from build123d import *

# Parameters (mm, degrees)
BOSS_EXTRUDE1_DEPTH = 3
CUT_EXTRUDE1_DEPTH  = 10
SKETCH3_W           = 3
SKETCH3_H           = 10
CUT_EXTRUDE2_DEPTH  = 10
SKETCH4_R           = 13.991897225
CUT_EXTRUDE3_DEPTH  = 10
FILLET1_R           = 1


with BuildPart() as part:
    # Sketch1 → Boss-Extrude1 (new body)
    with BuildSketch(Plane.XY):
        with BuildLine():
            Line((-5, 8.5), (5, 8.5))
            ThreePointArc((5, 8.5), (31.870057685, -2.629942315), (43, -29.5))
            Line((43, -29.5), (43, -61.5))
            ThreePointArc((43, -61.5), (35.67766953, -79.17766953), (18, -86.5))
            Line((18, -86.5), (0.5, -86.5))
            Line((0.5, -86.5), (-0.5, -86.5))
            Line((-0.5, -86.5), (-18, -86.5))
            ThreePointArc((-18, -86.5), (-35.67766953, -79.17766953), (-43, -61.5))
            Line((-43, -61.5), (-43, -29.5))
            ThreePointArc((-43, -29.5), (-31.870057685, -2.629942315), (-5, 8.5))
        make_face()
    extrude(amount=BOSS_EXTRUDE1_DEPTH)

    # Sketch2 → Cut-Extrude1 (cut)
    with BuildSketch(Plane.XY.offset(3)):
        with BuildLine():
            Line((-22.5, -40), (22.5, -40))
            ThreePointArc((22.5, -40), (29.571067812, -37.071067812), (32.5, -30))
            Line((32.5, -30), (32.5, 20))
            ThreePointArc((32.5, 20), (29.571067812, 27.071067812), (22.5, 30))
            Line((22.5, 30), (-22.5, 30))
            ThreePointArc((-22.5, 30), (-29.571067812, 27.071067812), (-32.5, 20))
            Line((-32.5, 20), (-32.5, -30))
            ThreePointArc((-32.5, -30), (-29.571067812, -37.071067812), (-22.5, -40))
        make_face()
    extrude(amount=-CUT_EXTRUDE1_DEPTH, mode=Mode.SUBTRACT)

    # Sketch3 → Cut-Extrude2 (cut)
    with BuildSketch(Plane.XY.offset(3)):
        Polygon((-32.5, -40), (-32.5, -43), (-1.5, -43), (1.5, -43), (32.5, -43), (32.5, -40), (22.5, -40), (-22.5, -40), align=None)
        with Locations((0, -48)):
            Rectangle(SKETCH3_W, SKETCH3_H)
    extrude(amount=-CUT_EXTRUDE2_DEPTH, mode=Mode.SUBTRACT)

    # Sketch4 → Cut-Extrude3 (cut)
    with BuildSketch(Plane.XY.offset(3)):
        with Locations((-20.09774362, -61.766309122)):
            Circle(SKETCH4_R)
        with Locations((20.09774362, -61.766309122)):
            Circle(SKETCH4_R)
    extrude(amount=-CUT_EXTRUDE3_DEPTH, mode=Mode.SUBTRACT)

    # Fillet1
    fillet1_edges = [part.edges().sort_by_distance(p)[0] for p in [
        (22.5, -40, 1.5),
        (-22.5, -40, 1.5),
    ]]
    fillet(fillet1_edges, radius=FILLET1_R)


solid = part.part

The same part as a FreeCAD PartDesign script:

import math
import FreeCAD as App
import Part
import Sketcher

V = App.Vector
Q = App.Units.Quantity


def edges_at(feature, points):
    """Names of the edges that pass closest to the given points."""
    edges = feature.Shape.Edges
    near = lambda p: min(range(len(edges)), key=lambda i: edges[i].distToShape(Part.Vertex(*p))[0])
    return sorted({f"Edge{near(p) + 1}" for p in points})


def add_polygon(sketch, points):
    """Adds a closed chain of lines whose ends are joined by coincident constraints."""
    first, n = sketch.GeometryCount, len(points)
    for a, b in zip(points, points[1:] + points[:1]):
        sketch.addGeometry(Part.LineSegment(App.Vector(*a, 0), App.Vector(*b, 0)), False)
    for i in range(n):
        sketch.addConstraint(Sketcher.Constraint("Coincident", first + i, 2, first + (i + 1) % n, 1))

doc = App.newDocument("Part")
body = doc.addObject("PartDesign::Body", "Body")

sketch1 = doc.addObject("Sketcher::SketchObject", "Sketch")
body.addObject(sketch1)
sketch1.AttachmentSupport = (doc.XY_Plane, [""])
sketch1.MapMode = "FlatFace"
sketch1.addGeometry([
    Part.LineSegment(V(5, 8.5, 0), V(-5, 8.5, 0)),
    Part.ArcOfCircle(Part.Circle(V(-5, -29.5, 0), V(0, 0, 1), 38), math.radians(90), math.radians(180)),
    Part.LineSegment(V(-43, -29.5, 0), V(-43, -61.5, 0)),
    Part.ArcOfCircle(Part.Circle(V(-18, -61.5, 0), V(0, 0, 1), 25), math.radians(180), math.radians(270)),
    Part.LineSegment(V(-18, -86.5, 0), V(18, -86.5, 0)),
    Part.ArcOfCircle(Part.Circle(V(18, -61.5, 0), V(0, 0, 1), 25), math.radians(-90), math.radians(0)),
    Part.LineSegment(V(43, -61.5, 0), V(43, -29.5, 0)),
    Part.ArcOfCircle(Part.Circle(V(5, -29.5, 0), V(0, 0, 1), 38), math.radians(0), math.radians(90)),
], False)
sketch1.addConstraint([
    Sketcher.Constraint("Tangent", 0, 2, 1, 1),
    Sketcher.Constraint("Tangent", 1, 2, 2, 1),
    Sketcher.Constraint("Tangent", 2, 2, 3, 1),
    Sketcher.Constraint("Tangent", 3, 2, 4, 1),
    Sketcher.Constraint("Tangent", 4, 2, 5, 1),
    Sketcher.Constraint("Tangent", 5, 2, 6, 1),
    Sketcher.Constraint("Tangent", 6, 2, 7, 1),
    Sketcher.Constraint("Tangent", 7, 2, 0, 1),
    Sketcher.Constraint("Horizontal", 0),
    Sketcher.Constraint("Vertical", 2),
    Sketcher.Constraint("Horizontal", 4),
    Sketcher.Constraint("Vertical", 6),
    Sketcher.Constraint("Equal", 3, 5),
    Sketcher.Constraint("Equal", 1, 7),
    Sketcher.Constraint("Radius", 1, Q("38 mm")),
    Sketcher.Constraint("Radius", 3, Q("25 mm")),
    Sketcher.Constraint("DistanceX", 0, 2, 0, 1, Q("10 mm")),
    Sketcher.Constraint("DistanceY", 2, 2, 2, 1, Q("32 mm")),
    Sketcher.Constraint("DistanceX", 1, 3, -1, 1, Q("5 mm")),
    Sketcher.Constraint("DistanceY", 1, 3, -1, 1, Q("29.5 mm")),
])
pad1 = doc.addObject("PartDesign::Pad", "Pad")
body.addObject(pad1)
pad1.Profile = sketch1
pad1.Length = 3

sketch2 = doc.addObject("Sketcher::SketchObject", "Sketch001")
body.addObject(sketch2)
sketch2.AttachmentSupport = (doc.XY_Plane, [""])
sketch2.MapMode = "FlatFace"
sketch2.AttachmentOffset = App.Placement(V(0, 0, 3), App.Rotation())
sketch2.addGeometry([
    Part.LineSegment(V(-22.5, -40, 0), V(22.5, -40, 0)),
    Part.ArcOfCircle(Part.Circle(V(22.5, -30, 0), V(0, 0, 1), 10), math.radians(-90), math.radians(0)),
    Part.LineSegment(V(32.5, -30, 0), V(32.5, 20, 0)),
    Part.ArcOfCircle(Part.Circle(V(22.5, 20, 0), V(0, 0, 1), 10), math.radians(0), math.radians(90)),
    Part.LineSegment(V(22.5, 30, 0), V(-22.5, 30, 0)),
    Part.ArcOfCircle(Part.Circle(V(-22.5, 20, 0), V(0, 0, 1), 10), math.radians(90), math.radians(180)),
    Part.LineSegment(V(-32.5, 20, 0), V(-32.5, -30, 0)),
    Part.ArcOfCircle(Part.Circle(V(-22.5, -30, 0), V(0, 0, 1), 10), math.radians(180), math.radians(270)),
], False)
sketch2.addConstraint([
    Sketcher.Constraint("Tangent", 0, 2, 1, 1),
    Sketcher.Constraint("Tangent", 1, 2, 2, 1),
    Sketcher.Constraint("Tangent", 2, 2, 3, 1),
    Sketcher.Constraint("Tangent", 3, 2, 4, 1),
    Sketcher.Constraint("Tangent", 4, 2, 5, 1),
    Sketcher.Constraint("Tangent", 5, 2, 6, 1),
    Sketcher.Constraint("Tangent", 6, 2, 7, 1),
    Sketcher.Constraint("Tangent", 7, 2, 0, 1),
    Sketcher.Constraint("Horizontal", 0),
    Sketcher.Constraint("Vertical", 2),
    Sketcher.Constraint("Horizontal", 4),
    Sketcher.Constraint("Vertical", 6),
    Sketcher.Constraint("Equal", 1, 3),
    Sketcher.Constraint("Equal", 3, 5),
    Sketcher.Constraint("Equal", 5, 7),
    Sketcher.Constraint("Radius", 1, Q("10 mm")),
    Sketcher.Constraint("DistanceX", 0, 1, 0, 2, Q("45 mm")),
    Sketcher.Constraint("DistanceY", 2, 1, 2, 2, Q("50 mm")),
    Sketcher.Constraint("DistanceY", 1, 3, -1, 1, Q("30 mm")),
    Sketcher.Constraint("DistanceX", -1, 1, 1, 3, Q("22.5 mm")),
])
pocket1 = doc.addObject("PartDesign::Pocket", "Pocket")
body.addObject(pocket1)
pocket1.Profile = sketch2
pocket1.Length = 10

sketch3 = doc.addObject("Sketcher::SketchObject", "Sketch002")
body.addObject(sketch3)
sketch3.AttachmentSupport = (doc.XY_Plane, [""])
sketch3.MapMode = "FlatFace"
sketch3.AttachmentOffset = App.Placement(V(0, 0, 3), App.Rotation())
add_polygon(sketch3, [(-32.5, -40), (-32.5, -43), (-1.5, -43), (-1.5, -53), (1.5, -53), (1.5, -43), (32.5, -43), (32.5, -40)])
sketch3.addConstraint([
    Sketcher.Constraint("Vertical", 0),
    Sketcher.Constraint("Horizontal", 1),
    Sketcher.Constraint("Vertical", 2),
    Sketcher.Constraint("Horizontal", 3),
    Sketcher.Constraint("Vertical", 4),
    Sketcher.Constraint("Horizontal", 5),
    Sketcher.Constraint("Vertical", 6),
    Sketcher.Constraint("Horizontal", 7),
    Sketcher.Constraint("Symmetric", 1, 2, 4, 2, -2),
    Sketcher.Constraint("Equal", 1, 5),
    Sketcher.Constraint("Equal", 3, 0),
    Sketcher.Constraint("DistanceX", 1, 1, 1, 2, Q("31 mm")),
    Sketcher.Constraint("DistanceX", 3, 1, 3, 2, Q("3 mm")),
    Sketcher.Constraint("DistanceY", 2, 2, 2, 1, Q("10 mm")),
    Sketcher.Constraint("DistanceY", 0, 2, -1, 1, Q("43 mm")),
])
pocket2 = doc.addObject("PartDesign::Pocket", "Pocket001")
body.addObject(pocket2)
pocket2.Profile = sketch3
pocket2.Length = 10

sketch4 = doc.addObject("Sketcher::SketchObject", "Sketch003")
body.addObject(sketch4)
sketch4.AttachmentSupport = (doc.XY_Plane, [""])
sketch4.MapMode = "FlatFace"
sketch4.AttachmentOffset = App.Placement(V(0, 0, 3), App.Rotation())
sketch4.addGeometry([
    Part.Circle(V(-20.097744, -61.766309, 0), V(0, 0, 1), 13.991897),
    Part.Circle(V(20.097744, -61.766309, 0), V(0, 0, 1), 13.991897),
], False)
sketch4.addConstraint([
    Sketcher.Constraint("Equal", 0, 1),
    Sketcher.Constraint("Symmetric", 0, 3, 1, 3, -2),
    Sketcher.Constraint("Diameter", 0, Q("27.983794 mm")),
    Sketcher.Constraint("DistanceY", 0, 3, -1, 1, Q("61.766309 mm")),
    Sketcher.Constraint("DistanceX", 0, 3, -1, 1, Q("20.097744 mm")),
])
pocket3 = doc.addObject("PartDesign::Pocket", "Pocket002")
body.addObject(pocket3)
pocket3.Profile = sketch4
pocket3.Length = 10
doc.recompute()

fillet = doc.addObject("PartDesign::Fillet", "Fillet")
body.addObject(fillet)
fillet.Base = (pocket3, edges_at(pocket3, [(22.5, -40, 1.5), (-22.5, -40, 1.5)]))
fillet.Radius = 1

doc.recompute()
